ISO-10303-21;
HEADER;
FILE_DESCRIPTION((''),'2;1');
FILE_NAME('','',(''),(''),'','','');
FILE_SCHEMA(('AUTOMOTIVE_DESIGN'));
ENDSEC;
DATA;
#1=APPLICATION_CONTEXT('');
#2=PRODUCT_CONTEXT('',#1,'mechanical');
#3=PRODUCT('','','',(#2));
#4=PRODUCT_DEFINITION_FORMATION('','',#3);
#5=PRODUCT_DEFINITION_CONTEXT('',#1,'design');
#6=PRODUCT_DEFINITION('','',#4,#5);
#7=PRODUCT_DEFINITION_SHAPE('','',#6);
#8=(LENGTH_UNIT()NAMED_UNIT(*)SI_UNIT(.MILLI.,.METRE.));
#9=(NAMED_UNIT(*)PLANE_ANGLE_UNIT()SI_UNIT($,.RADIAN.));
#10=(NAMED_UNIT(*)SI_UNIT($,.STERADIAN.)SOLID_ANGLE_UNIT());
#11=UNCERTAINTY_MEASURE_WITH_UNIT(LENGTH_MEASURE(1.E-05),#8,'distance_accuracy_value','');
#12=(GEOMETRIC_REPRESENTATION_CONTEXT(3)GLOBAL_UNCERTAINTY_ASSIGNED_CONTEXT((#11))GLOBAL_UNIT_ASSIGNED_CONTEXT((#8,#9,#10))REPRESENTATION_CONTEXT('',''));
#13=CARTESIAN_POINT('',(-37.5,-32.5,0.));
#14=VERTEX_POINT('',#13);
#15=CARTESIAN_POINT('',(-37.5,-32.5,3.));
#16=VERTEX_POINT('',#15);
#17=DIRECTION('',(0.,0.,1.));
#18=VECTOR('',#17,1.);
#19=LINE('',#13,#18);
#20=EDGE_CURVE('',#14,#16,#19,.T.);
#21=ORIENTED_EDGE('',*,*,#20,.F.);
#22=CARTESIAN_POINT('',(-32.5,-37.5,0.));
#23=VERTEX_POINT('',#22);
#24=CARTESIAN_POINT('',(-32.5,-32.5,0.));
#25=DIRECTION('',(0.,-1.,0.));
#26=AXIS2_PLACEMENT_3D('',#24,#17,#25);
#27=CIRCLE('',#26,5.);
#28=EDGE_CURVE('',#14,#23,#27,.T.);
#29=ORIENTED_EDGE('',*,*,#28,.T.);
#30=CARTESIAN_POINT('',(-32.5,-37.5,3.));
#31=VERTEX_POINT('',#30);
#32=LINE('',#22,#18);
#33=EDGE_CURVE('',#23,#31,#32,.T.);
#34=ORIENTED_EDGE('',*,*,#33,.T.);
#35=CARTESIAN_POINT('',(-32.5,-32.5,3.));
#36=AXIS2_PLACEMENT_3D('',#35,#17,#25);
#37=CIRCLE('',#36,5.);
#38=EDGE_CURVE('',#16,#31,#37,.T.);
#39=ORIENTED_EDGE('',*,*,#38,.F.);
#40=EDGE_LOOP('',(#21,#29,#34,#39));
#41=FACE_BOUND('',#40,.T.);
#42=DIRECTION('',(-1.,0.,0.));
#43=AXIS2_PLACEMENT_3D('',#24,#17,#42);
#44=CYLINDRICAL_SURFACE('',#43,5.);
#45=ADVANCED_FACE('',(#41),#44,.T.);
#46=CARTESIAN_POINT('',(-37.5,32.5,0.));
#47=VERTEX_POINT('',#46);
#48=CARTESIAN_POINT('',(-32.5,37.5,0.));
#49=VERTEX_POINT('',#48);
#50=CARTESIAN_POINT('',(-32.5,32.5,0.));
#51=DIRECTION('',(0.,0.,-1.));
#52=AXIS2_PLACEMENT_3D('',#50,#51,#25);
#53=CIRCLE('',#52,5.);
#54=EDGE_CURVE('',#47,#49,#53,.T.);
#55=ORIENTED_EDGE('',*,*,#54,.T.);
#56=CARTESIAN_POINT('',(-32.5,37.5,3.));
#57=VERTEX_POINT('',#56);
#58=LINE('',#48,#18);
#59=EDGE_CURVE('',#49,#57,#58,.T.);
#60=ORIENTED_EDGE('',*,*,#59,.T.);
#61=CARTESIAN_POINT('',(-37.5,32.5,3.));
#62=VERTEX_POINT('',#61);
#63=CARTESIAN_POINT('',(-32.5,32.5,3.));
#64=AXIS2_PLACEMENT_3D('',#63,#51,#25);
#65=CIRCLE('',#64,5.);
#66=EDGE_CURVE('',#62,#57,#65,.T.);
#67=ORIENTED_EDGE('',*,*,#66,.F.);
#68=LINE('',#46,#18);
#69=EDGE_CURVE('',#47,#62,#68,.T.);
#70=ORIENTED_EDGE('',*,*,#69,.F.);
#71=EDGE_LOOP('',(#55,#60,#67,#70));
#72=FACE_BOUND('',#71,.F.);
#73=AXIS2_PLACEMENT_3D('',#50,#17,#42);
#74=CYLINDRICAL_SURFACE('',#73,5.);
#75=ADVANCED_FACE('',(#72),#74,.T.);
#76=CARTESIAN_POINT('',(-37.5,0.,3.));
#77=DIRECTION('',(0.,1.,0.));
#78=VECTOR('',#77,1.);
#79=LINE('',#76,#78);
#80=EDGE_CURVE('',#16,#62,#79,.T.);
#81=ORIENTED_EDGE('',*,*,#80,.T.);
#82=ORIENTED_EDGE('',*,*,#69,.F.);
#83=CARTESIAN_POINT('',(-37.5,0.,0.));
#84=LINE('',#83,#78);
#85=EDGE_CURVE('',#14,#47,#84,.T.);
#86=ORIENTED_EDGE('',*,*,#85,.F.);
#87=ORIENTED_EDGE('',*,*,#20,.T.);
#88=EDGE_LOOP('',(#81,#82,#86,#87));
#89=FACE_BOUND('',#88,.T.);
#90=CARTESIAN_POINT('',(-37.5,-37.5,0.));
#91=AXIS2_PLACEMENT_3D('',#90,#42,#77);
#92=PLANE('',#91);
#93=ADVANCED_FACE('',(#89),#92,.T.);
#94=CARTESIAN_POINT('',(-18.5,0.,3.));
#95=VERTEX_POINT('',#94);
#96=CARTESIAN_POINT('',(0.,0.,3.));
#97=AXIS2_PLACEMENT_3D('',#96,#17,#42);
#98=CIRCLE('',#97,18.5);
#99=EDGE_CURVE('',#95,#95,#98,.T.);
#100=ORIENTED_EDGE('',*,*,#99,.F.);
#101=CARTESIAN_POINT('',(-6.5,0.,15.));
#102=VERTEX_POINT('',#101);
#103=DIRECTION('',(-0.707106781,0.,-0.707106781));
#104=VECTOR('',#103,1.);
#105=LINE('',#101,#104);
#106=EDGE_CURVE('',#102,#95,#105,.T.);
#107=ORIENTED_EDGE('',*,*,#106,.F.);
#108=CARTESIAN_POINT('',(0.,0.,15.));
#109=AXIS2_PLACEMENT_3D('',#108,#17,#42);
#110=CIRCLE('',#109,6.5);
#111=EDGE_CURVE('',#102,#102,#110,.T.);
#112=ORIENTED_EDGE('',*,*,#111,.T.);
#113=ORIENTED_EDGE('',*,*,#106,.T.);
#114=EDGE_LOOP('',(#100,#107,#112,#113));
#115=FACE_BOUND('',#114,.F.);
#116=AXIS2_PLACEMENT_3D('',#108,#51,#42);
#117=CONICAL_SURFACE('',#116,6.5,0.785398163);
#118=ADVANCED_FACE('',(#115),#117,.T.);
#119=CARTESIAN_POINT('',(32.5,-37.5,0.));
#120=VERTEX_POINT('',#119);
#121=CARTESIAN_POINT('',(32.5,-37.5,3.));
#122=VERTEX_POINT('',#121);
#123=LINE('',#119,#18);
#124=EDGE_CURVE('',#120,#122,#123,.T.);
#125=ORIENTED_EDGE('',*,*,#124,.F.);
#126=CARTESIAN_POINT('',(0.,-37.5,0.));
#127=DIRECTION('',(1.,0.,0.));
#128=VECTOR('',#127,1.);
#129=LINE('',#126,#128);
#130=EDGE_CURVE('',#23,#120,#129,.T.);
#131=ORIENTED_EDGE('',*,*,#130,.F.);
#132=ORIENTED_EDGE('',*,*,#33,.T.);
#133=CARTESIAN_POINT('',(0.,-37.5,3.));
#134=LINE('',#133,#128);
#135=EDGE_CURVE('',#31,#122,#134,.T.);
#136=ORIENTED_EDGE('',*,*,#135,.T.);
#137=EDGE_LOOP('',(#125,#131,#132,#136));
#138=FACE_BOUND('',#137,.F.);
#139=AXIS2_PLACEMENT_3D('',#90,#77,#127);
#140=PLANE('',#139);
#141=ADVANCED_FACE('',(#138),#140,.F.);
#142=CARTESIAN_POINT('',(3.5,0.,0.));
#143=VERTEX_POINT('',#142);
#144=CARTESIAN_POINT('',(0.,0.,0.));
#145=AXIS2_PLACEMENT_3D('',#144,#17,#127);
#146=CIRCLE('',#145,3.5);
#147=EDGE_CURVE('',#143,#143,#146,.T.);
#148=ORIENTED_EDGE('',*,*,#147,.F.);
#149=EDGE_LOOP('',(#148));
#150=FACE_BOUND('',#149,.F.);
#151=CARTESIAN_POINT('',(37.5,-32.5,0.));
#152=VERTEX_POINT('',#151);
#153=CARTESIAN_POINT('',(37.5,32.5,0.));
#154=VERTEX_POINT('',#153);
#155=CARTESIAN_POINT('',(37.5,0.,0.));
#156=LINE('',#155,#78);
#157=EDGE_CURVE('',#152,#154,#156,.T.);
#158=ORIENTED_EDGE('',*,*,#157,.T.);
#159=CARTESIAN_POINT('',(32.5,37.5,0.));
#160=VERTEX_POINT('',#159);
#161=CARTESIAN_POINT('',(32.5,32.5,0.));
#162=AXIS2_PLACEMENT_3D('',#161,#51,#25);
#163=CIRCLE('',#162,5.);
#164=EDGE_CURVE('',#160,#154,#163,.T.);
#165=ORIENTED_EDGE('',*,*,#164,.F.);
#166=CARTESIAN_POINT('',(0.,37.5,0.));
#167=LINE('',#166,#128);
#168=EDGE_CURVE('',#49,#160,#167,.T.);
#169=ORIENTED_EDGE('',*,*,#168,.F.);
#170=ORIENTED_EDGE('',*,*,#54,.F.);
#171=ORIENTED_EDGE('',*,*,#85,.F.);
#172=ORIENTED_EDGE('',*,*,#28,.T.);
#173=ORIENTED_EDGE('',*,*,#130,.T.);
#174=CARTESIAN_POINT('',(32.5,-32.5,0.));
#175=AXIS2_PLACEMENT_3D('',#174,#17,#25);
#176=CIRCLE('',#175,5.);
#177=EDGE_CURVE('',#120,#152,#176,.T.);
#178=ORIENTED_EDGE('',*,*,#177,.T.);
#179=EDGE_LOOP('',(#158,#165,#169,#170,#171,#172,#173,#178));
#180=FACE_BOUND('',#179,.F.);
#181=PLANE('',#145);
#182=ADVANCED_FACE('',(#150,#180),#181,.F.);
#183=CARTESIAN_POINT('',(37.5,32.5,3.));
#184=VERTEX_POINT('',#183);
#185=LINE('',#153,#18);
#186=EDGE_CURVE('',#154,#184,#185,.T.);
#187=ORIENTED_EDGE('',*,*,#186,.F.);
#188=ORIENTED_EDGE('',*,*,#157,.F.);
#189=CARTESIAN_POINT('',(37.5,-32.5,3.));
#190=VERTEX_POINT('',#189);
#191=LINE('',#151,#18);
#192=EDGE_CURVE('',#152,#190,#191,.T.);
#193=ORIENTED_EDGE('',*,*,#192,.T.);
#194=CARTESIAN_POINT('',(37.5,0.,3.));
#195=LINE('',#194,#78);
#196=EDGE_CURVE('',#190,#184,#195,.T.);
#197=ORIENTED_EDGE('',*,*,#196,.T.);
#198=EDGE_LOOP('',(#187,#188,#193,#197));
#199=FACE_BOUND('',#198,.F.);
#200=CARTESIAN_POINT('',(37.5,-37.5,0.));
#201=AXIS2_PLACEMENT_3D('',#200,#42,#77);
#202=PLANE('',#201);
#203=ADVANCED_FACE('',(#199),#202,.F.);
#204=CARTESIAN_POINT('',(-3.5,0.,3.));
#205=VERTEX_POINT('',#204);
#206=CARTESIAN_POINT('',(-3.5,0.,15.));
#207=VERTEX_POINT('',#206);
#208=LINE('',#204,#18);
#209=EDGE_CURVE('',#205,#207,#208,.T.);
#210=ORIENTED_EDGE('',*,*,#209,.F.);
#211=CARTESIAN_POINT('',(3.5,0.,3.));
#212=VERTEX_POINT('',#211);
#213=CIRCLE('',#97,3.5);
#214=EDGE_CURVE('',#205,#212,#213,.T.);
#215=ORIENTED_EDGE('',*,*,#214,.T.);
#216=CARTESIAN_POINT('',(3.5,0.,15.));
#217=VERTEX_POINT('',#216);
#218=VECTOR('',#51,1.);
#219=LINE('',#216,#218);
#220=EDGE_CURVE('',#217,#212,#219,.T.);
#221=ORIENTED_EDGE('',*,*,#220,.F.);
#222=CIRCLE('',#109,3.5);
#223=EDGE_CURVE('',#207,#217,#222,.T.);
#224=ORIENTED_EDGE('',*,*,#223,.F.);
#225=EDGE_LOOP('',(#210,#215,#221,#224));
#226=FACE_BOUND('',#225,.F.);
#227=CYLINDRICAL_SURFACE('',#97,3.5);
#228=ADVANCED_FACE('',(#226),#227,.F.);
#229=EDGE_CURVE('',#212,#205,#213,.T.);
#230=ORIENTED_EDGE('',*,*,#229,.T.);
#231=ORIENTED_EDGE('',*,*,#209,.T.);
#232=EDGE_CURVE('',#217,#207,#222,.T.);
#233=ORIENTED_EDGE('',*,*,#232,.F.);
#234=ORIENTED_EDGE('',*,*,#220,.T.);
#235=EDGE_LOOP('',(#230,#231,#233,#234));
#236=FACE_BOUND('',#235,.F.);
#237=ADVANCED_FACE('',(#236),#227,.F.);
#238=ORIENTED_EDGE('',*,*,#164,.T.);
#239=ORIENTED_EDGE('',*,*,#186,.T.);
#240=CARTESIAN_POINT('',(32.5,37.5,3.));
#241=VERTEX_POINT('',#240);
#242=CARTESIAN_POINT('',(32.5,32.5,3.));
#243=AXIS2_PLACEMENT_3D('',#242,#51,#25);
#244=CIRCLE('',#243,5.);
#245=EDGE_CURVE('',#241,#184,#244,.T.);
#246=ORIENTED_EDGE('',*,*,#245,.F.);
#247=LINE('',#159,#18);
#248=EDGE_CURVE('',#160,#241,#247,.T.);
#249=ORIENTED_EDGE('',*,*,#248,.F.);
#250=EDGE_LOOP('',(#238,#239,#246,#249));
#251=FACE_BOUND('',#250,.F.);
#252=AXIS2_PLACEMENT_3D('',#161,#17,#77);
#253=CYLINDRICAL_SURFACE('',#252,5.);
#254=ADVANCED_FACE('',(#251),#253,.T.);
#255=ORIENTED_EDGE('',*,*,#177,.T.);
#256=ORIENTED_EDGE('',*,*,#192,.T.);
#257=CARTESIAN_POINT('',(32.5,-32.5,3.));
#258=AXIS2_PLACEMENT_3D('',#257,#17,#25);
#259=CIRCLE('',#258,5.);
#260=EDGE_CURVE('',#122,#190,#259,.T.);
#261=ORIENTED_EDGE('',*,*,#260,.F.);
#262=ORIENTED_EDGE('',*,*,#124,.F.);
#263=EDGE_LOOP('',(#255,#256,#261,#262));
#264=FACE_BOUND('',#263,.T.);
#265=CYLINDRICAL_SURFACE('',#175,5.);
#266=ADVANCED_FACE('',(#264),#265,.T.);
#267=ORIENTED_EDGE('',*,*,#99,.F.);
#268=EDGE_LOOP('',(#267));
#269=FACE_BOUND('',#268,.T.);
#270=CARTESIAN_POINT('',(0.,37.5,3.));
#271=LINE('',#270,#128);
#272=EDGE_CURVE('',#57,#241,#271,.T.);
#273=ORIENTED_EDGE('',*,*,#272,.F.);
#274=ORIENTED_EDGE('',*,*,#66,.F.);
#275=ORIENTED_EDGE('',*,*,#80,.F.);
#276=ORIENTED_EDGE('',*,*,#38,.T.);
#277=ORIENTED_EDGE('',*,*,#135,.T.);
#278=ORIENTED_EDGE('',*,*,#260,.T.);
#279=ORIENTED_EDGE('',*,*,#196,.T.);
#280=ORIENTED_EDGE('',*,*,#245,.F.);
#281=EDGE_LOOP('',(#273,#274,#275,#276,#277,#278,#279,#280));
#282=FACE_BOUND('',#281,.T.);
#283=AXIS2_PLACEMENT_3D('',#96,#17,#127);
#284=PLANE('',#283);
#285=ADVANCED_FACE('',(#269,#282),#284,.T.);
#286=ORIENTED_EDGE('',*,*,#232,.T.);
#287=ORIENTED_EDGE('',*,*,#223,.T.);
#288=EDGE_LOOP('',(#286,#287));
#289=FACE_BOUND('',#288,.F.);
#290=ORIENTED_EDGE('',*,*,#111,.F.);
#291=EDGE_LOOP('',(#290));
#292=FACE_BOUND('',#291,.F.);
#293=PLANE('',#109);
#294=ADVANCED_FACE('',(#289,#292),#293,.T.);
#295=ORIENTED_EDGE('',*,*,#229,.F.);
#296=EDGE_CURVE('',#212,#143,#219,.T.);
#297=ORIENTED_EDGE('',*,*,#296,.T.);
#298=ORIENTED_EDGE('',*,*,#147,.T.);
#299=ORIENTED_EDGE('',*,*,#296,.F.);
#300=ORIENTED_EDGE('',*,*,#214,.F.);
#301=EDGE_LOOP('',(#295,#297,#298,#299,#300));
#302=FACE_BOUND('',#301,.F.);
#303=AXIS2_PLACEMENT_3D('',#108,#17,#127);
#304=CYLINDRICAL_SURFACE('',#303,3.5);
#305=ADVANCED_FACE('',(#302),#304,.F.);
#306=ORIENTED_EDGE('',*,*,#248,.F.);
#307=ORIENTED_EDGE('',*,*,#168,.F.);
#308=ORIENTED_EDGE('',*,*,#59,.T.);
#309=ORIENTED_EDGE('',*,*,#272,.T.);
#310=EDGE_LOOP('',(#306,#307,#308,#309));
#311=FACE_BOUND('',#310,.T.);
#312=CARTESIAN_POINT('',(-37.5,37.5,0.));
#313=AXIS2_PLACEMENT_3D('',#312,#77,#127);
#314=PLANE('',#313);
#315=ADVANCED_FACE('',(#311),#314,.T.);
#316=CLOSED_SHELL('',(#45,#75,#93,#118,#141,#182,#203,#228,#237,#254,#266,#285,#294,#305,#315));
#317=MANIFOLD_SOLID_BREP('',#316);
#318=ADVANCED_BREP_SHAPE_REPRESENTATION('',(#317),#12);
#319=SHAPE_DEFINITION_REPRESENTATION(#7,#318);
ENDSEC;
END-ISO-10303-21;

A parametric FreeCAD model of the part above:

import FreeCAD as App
import Part
import Sketcher
Q = App.Units.Quantity


def edges_at(feature, points):
    """Names of the edges that pass closest to the given points."""
    edges = feature.Shape.Edges
    near = lambda p: min(range(len(edges)), key=lambda i: edges[i].distToShape(Part.Vertex(*p))[0])
    return sorted({f"Edge{near(p) + 1}" for p in points})


def add_polygon(sketch, points):
    """Adds a closed chain of lines whose ends are joined by coincident constraints."""
    first, n = sketch.GeometryCount, len(points)
    for a, b in zip(points, points[1:] + points[:1]):
        sketch.addGeometry(Part.LineSegment(App.Vector(*a, 0), App.Vector(*b, 0)), False)
    for i in range(n):
        sketch.addConstraint(Sketcher.Constraint("Coincident", first + i, 2, first + (i + 1) % n, 1))

doc = App.newDocument("Part")
body = doc.addObject("PartDesign::Body", "Body")

# Sketch on XY plane
sketch1 = body.newObject("Sketcher::SketchObject", "Sketch")
sketch1.AttachmentSupport = (doc.getObject("XY_Plane"), [""])
sketch1.MapMode = "FlatFace"
add_polygon(sketch1, [(-37.5, 37.5), (-37.5, -37.5), (37.5, -37.5), (37.5, 37.5)])  # lines 0-3
sketch1.addConstraint(Sketcher.Constraint("Vertical", 0))
sketch1.addConstraint(Sketcher.Constraint("Horizontal", 1))
sketch1.addConstraint(Sketcher.Constraint("Vertical", 2))
sketch1.addConstraint(Sketcher.Constraint("Horizontal", 3))
sketch1.addConstraint(Sketcher.Constraint("Symmetric", 0, 2, 2, 2, -1, 1))
sketch1.addConstraint(Sketcher.Constraint("Equal", 3, 0))
sketch1.addConstraint(Sketcher.Constraint("DistanceX", 1, 1, 1, 2, Q("75 mm")))
pad1 = body.newObject("PartDesign::Pad", "Pad")
pad1.Profile = sketch1
pad1.Length = 3

# Sketch on XZ plane
sketch2 = body.newObject("Sketcher::SketchObject", "Sketch001")
sketch2.AttachmentSupport = (doc.getObject("XZ_Plane"), [""])
sketch2.MapMode = "FlatFace"
add_polygon(sketch2, [(-6.5, 15), (-18.5, 3), (-3.5, 3), (-3.5, 15)])  # lines 0-3
sketch2.addConstraint(Sketcher.Constraint("Horizontal", 1))
sketch2.addConstraint(Sketcher.Constraint("Vertical", 2))
sketch2.addConstraint(Sketcher.Constraint("Horizontal", 3))
sketch2.addConstraint(Sketcher.Constraint("DistanceX", 1, 1, 1, 2, Q("15 mm")))
sketch2.addConstraint(Sketcher.Constraint("DistanceX", 3, 2, 3, 1, Q("3 mm")))
sketch2.addConstraint(Sketcher.Constraint("DistanceY", 2, 1, 2, 2, Q("12 mm")))
sketch2.addConstraint(Sketcher.Constraint("DistanceY", -1, 1, 0, 2, Q("3 mm")))
sketch2.addConstraint(Sketcher.Constraint("DistanceX", 0, 2, -1, 1, Q("18.5 mm")))
revolution = body.newObject("PartDesign::Revolution", "Revolution")
revolution.Profile = sketch2
revolution.ReferenceAxis = (sketch2, ["V_Axis"])
revolution.Angle = 360

# Sketch on XY plane
sketch3 = body.newObject("Sketcher::SketchObject", "Sketch002")
sketch3.AttachmentSupport = (doc.getObject("XY_Plane"), [""])
sketch3.MapMode = "FlatFace"
sketch3.AttachmentOffset = App.Placement(App.Vector(0, 0, 15), App.Rotation())
sketch3.addGeometry(Part.Circle(App.Vector(0, 0, 0), App.Vector(0, 0, 1), 3.5), False)
sketch3.addConstraint(Sketcher.Constraint("Coincident", 0, 3, -1, 1))
sketch3.addConstraint(Sketcher.Constraint("Diameter", 0, Q("7 mm")))
pocket1 = body.newObject("PartDesign::Pocket", "Pocket")
pocket1.Profile = sketch3
pocket1.Type = "ThroughAll"
doc.recompute()

fillet = body.newObject("PartDesign::Fillet", "Fillet")
fillet.Base = (pocket1, edges_at(pocket1, [
    (-37.5, 37.5, 1.5),
    (-37.5, -37.5, 1.5),
    (37.5, -37.5, 1.5),
    (37.5, 37.5, 1.5),
]))
fillet.Radius = 5

doc.recompute()
